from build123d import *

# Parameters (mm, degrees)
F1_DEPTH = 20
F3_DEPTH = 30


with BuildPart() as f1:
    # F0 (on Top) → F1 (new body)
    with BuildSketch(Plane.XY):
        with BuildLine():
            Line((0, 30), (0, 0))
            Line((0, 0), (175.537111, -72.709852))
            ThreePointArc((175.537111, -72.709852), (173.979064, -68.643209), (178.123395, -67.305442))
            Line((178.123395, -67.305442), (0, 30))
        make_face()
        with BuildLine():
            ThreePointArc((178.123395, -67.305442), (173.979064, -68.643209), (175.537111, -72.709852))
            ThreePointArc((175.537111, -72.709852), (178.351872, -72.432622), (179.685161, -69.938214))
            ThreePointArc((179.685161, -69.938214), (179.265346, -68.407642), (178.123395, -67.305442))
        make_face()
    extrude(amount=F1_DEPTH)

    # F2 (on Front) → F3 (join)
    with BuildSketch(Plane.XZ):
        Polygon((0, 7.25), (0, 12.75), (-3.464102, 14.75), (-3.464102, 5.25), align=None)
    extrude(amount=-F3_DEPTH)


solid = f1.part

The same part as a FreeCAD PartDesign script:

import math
import FreeCAD as App
import Part
import Sketcher

V = App.Vector
Q = App.Units.Quantity


def add_polygon(sketch, points):
    """Adds a closed chain of lines whose ends are joined by coincident constraints."""
    first, n = sketch.GeometryCount, len(points)
    for a, b in zip(points, points[1:] + points[:1]):
        sketch.addGeometry(Part.LineSegment(App.Vector(*a, 0), App.Vector(*b, 0)), False)
    for i in range(n):
        sketch.addConstraint(Sketcher.Constraint("Coincident", first + i, 2, first + (i + 1) % n, 1))

doc = App.newDocument("Part")
body = doc.addObject("PartDesign::Body", "Body")

sketch1 = body.newObject("Sketcher::SketchObject", "Sketch")
sketch1.AttachmentSupport = (doc.getObject("XY_Plane"), [""])
sketch1.MapMode = "FlatFace"
sketch1.addGeometry(Part.LineSegment(V(0, 30, 0), V(0, 0, 0)), False)
sketch1.addGeometry(Part.LineSegment(V(0, 0, 0), V(175.537111, -72.709852, 0)), False)
sketch1.addGeometry(Part.ArcOfCircle(Part.Circle(V(176.685161, -69.938213, 0), V(0, 0, 1), 3), math.radians(-112.499996), math.radians(-0.000011)), False)
sketch1.addGeometry(Part.ArcOfCircle(Part.Circle(V(176.685163, -69.938212, 0), V(0, 0, 1), 2.999998), math.radians(-0.000044), math.radians(61.353062)), False)
sketch1.addGeometry(Part.LineSegment(V(178.123395, -67.305442, 0), V(0, 30, 0)), False)
sketch1.addConstraint(Sketcher.Constraint("Coincident", 0, 2, 1, 1))
sketch1.addConstraint(Sketcher.Constraint("Tangent", 1, 2, 2, 1))
sketch1.addConstraint(Sketcher.Constraint("Tangent", 2, 2, 3, 1))
sketch1.addConstraint(Sketcher.Constraint("Tangent", 3, 2, 4, 1))
sketch1.addConstraint(Sketcher.Constraint("Coincident", 4, 2, 0, 1))
sketch1.addConstraint(Sketcher.Constraint("Vertical", 0))
sketch1.addConstraint(Sketcher.Constraint("Coincident", 0, 2, -1, 1))
sketch1.addConstraint(Sketcher.Constraint("Radius", 2, Q("3 mm")))
sketch1.addConstraint(Sketcher.Constraint("DistanceY", 0, 2, 0, 1, Q("30 mm")))
sketch1.addConstraint(Sketcher.Constraint("Distance", 1, Q("190 mm")))
sketch1.addConstraint(Sketcher.Constraint("Angle", 1, Q("-22.5 deg")))
sketch1.addConstraint(Sketcher.Constraint("Radius", 3, Q("2.999998 mm")))
sketch1.addConstraint(Sketcher.Constraint("DistanceY", 2, 2, 3, 2, Q("2.632772 mm")))
pad1 = body.newObject("PartDesign::Pad", "Pad")
pad1.Profile = sketch1
pad1.Length = 20

sketch2 = body.newObject("Sketcher::SketchObject", "Sketch001")
sketch2.AttachmentSupport = (doc.getObject("XZ_Plane"), [""])
sketch2.MapMode = "FlatFace"
add_polygon(sketch2, [(0, 7.25), (0, 12.75), (-3.464102, 14.75), (-3.464102, 5.25)])
sketch2.addConstraint(Sketcher.Constraint("Vertical", 0))
sketch2.addConstraint(Sketcher.Constraint("Vertical", 2))
sketch2.addConstraint(Sketcher.Constraint("PointOnObject", 0, 2, -2))
sketch2.addConstraint(Sketcher.Constraint("Equal", 1, 3))
sketch2.addConstraint(Sketcher.Constraint("Angle", 1, Q("150.000003 deg")))
sketch2.addConstraint(Sketcher.Constraint("Distance", 1, Q("4 mm")))
sketch2.addConstraint(Sketcher.Constraint("DistanceY", 0, 1, 0, 2, Q("5.5 mm")))
sketch2.addConstraint(Sketcher.Constraint("DistanceY", -1, 1, 0, 2, Q("12.75 mm")))
pad2 = body.newObject("PartDesign::Pad", "Pad001")
pad2.Profile = sketch2
pad2.Length = 30
pad2.Reversed = True

doc.recompute()
